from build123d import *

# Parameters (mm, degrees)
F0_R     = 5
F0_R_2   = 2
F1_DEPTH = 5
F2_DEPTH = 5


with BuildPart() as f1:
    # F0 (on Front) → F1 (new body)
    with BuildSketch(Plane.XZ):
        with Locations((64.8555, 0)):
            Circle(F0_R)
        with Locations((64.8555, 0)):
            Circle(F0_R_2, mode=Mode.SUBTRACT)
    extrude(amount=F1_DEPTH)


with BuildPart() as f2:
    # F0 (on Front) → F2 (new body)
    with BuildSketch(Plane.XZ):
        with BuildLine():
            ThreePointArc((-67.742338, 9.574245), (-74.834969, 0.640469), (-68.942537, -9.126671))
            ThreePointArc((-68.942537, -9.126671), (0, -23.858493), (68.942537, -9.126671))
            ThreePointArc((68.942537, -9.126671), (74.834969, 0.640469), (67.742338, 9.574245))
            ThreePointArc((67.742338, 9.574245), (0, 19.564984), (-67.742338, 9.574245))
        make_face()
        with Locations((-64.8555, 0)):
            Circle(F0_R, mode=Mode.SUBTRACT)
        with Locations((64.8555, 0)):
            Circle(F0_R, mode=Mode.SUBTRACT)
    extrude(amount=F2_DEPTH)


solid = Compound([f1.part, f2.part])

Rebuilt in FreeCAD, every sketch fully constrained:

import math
import FreeCAD as App
import Part
import Sketcher
from FreeCAD import Vector

doc = App.newDocument("Part")
body = doc.addObject("PartDesign::Body", "Body")

sketch1 = body.newObject("Sketcher::SketchObject", "Sketch")
sketch1.AttachmentSupport = (doc.getObject("XZ_Plane"), [""])
sketch1.MapMode = "FlatFace"
sketch1.addGeometry([
    Part.Circle(Vector(64.9, 0, 0), Vector(0, 0, 1), 5),
    Part.Circle(Vector(64.9, 0, 0), Vector(0, 0, 1), 2),
], False)
sketch1.addConstraint([
    Sketcher.Constraint("Coincident", 1, 3, 0, 3),
    Sketcher.Constraint("PointOnObject", 0, 3, -1),
    Sketcher.Constraint("Diameter", 0, 10.0),
    Sketcher.Constraint("Diameter", 1, 4.0),
    Sketcher.Constraint("DistanceX", -1, 1, 0, 3, 64.8555),
])
pad1 = body.newObject("PartDesign::Pad", "Pad")
pad1.Profile = sketch1
pad1.Length = 5
body2 = doc.addObject("PartDesign::Body", "Body001")

sketch2 = body2.newObject("Sketcher::SketchObject", "Sketch001")
sketch2.AttachmentSupport = (doc.getObject("XZ_Plane001"), [""])
sketch2.MapMode = "FlatFace"
sketch2.addGeometry([
    Part.ArcOfCircle(Part.Circle(Vector(-65, 0, 0), Vector(0, 0, 1), 10), math.radians(107), math.radians(246)),
    Part.ArcOfCircle(Part.Circle(Vector(0, 145, 0), Vector(0, 0, 1), 169), math.radians(-114), math.radians(-66)),
    Part.ArcOfCircle(Part.Circle(Vector(65, 0, 0), Vector(0, 0, 1), 10), math.radians(-66), math.radians(73)),
    Part.ArcOfCircle(Part.Circle(Vector(0, -215, 0), Vector(0, 0, 1), 235), math.radians(73), math.radians(107)),
    Part.Circle(Vector(-65, 0, 0), Vector(0, 0, 1), 5),
    Part.Circle(Vector(65, 0, 0), Vector(0, 0, 1), 5),
], False)
sketch2.addConstraint([
    Sketcher.Constraint("Tangent", 0, 2, 1, 1),
    Sketcher.Constraint("Tangent", 1, 2, 2, 1),
    Sketcher.Constraint("Tangent", 2, 2, 3, 1),
    Sketcher.Constraint("Tangent", 3, 2, 0, 1),
    Sketcher.Constraint("Coincident", 4, 3, 0, 3),
    Sketcher.Constraint("Coincident", 5, 3, 2, 3),
    Sketcher.Constraint("Equal", 0, 2),
    Sketcher.Constraint("Equal", 4, 5),
    Sketcher.Constraint("Symmetric", 0, 3, 2, 3, -1, 1),
    Sketcher.Constraint("PointOnObject", 0, 3, -1),
    Sketcher.Constraint("Diameter", 4, 10.0),
    Sketcher.Constraint("Radius", 0, 10.0),
    Sketcher.Constraint("Radius", 3, 234.659279),
    Sketcher.Constraint("Radius", 1, 168.685855),
    Sketcher.Constraint("DistanceX", 0, 3, 2, 3, 129.711001),
])
pad2 = body2.newObject("PartDesign::Pad", "Pad001")
pad2.Profile = sketch2
pad2.Length = 5

doc.recompute()
